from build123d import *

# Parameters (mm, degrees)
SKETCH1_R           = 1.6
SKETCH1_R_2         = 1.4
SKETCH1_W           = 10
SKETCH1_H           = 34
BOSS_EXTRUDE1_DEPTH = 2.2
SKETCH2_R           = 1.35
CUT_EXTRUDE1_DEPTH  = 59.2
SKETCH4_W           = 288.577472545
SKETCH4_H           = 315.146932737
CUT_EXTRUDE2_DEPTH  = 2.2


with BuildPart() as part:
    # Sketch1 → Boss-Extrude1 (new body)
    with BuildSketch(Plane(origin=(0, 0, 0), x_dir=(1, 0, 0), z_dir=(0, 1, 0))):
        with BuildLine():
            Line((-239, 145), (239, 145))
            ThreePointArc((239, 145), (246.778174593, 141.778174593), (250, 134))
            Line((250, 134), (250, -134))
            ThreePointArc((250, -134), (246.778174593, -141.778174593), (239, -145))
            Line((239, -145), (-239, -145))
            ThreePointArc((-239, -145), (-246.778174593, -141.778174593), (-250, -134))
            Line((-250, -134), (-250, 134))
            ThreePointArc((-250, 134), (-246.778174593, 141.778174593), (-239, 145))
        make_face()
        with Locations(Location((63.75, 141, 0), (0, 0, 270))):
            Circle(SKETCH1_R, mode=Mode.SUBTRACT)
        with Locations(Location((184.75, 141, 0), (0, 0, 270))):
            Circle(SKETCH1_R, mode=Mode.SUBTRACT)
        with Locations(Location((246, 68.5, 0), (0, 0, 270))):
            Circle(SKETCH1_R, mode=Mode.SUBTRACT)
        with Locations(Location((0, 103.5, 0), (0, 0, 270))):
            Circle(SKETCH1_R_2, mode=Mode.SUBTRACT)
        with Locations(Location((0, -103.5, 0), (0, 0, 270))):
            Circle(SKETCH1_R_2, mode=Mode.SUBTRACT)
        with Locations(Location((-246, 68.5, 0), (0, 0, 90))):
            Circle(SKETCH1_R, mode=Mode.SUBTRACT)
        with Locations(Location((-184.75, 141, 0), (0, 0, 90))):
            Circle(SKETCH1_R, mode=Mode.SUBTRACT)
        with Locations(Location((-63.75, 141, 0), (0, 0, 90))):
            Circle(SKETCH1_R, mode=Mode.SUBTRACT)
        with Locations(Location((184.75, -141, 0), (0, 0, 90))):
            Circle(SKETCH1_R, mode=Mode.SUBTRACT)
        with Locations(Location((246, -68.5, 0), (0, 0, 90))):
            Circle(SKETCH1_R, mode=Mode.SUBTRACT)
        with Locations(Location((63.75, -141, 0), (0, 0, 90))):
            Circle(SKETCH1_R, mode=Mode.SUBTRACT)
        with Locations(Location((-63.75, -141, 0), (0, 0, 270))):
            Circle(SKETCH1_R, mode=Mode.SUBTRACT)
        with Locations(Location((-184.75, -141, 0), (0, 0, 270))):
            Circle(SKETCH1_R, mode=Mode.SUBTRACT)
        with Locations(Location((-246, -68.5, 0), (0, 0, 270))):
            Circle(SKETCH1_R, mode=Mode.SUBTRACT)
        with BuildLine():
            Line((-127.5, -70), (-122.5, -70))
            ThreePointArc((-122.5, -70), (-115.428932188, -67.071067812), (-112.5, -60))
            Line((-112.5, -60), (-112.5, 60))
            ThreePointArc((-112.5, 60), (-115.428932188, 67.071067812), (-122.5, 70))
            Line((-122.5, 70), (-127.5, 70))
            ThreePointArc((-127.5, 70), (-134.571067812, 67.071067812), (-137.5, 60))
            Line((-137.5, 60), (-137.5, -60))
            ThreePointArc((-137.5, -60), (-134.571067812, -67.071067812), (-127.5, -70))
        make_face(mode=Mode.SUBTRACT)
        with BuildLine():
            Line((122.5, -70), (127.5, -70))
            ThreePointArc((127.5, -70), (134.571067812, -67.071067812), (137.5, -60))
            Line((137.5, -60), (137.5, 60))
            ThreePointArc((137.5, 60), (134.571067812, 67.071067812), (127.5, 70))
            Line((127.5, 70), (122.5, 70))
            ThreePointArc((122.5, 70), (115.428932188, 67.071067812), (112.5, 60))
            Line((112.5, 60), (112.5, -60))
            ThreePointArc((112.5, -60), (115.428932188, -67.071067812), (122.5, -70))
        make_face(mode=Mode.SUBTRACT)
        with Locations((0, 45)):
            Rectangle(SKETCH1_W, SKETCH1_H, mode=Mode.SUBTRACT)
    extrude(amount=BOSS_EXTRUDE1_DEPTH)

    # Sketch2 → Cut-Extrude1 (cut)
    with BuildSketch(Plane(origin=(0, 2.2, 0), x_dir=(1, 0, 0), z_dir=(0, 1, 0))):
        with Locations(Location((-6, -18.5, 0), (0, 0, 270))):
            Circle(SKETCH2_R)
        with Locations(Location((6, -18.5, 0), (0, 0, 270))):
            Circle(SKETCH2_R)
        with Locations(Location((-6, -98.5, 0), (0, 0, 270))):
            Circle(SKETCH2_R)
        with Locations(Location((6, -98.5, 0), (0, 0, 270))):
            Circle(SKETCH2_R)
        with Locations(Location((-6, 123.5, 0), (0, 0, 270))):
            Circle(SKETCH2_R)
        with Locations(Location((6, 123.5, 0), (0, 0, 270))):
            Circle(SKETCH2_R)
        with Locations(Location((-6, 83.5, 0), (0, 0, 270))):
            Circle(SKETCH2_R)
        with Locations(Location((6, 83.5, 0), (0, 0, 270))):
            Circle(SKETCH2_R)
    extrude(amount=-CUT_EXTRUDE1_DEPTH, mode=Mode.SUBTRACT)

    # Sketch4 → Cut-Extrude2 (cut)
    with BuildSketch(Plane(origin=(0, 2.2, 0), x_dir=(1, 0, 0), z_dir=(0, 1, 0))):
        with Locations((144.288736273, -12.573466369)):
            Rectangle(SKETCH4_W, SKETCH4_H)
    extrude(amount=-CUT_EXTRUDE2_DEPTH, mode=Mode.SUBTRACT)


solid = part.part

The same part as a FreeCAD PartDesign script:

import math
import FreeCAD as App
import Part
import Sketcher
from FreeCAD import Vector
Q = App.Units.Quantity


def add_polygon(sketch, points):
    """Adds a closed chain of lines whose ends are joined by coincident constraints."""
    first, n = sketch.GeometryCount, len(points)
    for a, b in zip(points, points[1:] + points[:1]):
        sketch.addGeometry(Part.LineSegment(App.Vector(*a, 0), App.Vector(*b, 0)), False)
    for i in range(n):
        sketch.addConstraint(Sketcher.Constraint("Coincident", first + i, 2, first + (i + 1) % n, 1))

doc = App.newDocument("Part")
body = doc.addObject("PartDesign::Body", "Body")

sketch1 = body.newObject("Sketcher::SketchObject", "Sketch")
sketch1.AttachmentSupport = (doc.getObject("XZ_Plane"), [""])
sketch1.MapMode = "FlatFace"
sketch1.addGeometry(Part.LineSegment(Vector(239, -145, 0), Vector(-239, -145, 0)), False)
sketch1.addGeometry(Part.ArcOfCircle(Part.Circle(Vector(-239, -134, 0), Vector(0, 0, 1), 11), math.radians(180), math.radians(270)), False)
sketch1.addGeometry(Part.LineSegment(Vector(-250, -134, 0), Vector(-250, 134, 0)), False)
sketch1.addGeometry(Part.ArcOfCircle(Part.Circle(Vector(-239, 134, 0), Vector(0, 0, 1), 11), math.radians(90), math.radians(180)), False)
sketch1.addGeometry(Part.LineSegment(Vector(-239, 145, 0), Vector(239, 145, 0)), False)
sketch1.addGeometry(Part.ArcOfCircle(Part.Circle(Vector(239, 134, 0), Vector(0, 0, 1), 11), math.radians(0), math.radians(90)), False)
sketch1.addGeometry(Part.LineSegment(Vector(250, 134, 0), Vector(250, -134, 0)), False)
sketch1.addGeometry(Part.ArcOfCircle(Part.Circle(Vector(239, -134, 0), Vector(0, 0, 1), 11), math.radians(-90), math.radians(0)), False)
sketch1.addGeometry(Part.Circle(Vector(184.75, 141, 0), Vector(0, 0, 1), 1.6), False)
sketch1.addGeometry(Part.Circle(Vector(63.75, 141, 0), Vector(0, 0, 1), 1.6), False)
sketch1.addGeometry(Part.Circle(Vector(246, 68.5, 0), Vector(0, 0, 1), 1.6), False)
sketch1.addGeometry(Part.Circle(Vector(-63.75, 141, 0), Vector(0, 0, 1), 1.6), False)
sketch1.addGeometry(Part.Circle(Vector(0, 103.5, 0), Vector(0, 0, 1), 1.4), False)
sketch1.addGeometry(Part.Circle(Vector(-184.75, 141, 0), Vector(0, 0, 1), 1.6), False)
sketch1.addGeometry(Part.Circle(Vector(-246, 68.5, 0), Vector(0, 0, 1), 1.6), False)
sketch1.addGeometry(Part.ArcOfCircle(Part.Circle(Vector(122.5, 60, 0), Vector(0, 0, 1), 10), math.radians(90), math.radians(180)), False)
sketch1.addGeometry(Part.LineSegment(Vector(112.5, 60, 0), Vector(112.5, -60, 0)), False)
sketch1.addGeometry(Part.ArcOfCircle(Part.Circle(Vector(122.5, -60, 0), Vector(0, 0, 1), 10), math.radians(180), math.radians(270)), False)
sketch1.addGeometry(Part.LineSegment(Vector(122.5, -70, 0), Vector(127.5, -70, 0)), False)
sketch1.addGeometry(Part.ArcOfCircle(Part.Circle(Vector(127.5, -60, 0), Vector(0, 0, 1), 10), math.radians(-90), math.radians(0)), False)
sketch1.addGeometry(Part.LineSegment(Vector(137.5, -60, 0), Vector(137.5, 60, 0)), False)
sketch1.addGeometry(Part.ArcOfCircle(Part.Circle(Vector(127.5, 60, 0), Vector(0, 0, 1), 10), math.radians(0), math.radians(90)), False)
sketch1.addGeometry(Part.LineSegment(Vector(127.5, 70, 0), Vector(122.5, 70, 0)), False)
sketch1.addGeometry(Part.Circle(Vector(246, -68.5, 0), Vector(0, 0, 1), 1.6), False)
sketch1.addGeometry(Part.Circle(Vector(184.75, -141, 0), Vector(0, 0, 1), 1.6), False)
sketch1.addGeometry(Part.Circle(Vector(63.75, -141, 0), Vector(0, 0, 1), 1.6), False)
add_polygon(sketch1, [(-5, -28), (-5, -62), (5, -62), (5, -28)])
sketch1.addGeometry(Part.ArcOfCircle(Part.Circle(Vector(-127.5, 60, 0), Vector(0, 0, 1), 10), math.radians(90), math.radians(180)), False)
sketch1.addGeometry(Part.LineSegment(Vector(-137.5, 60, 0), Vector(-137.5, -60, 0)), False)
sketch1.addGeometry(Part.ArcOfCircle(Part.Circle(Vector(-127.5, -60, 0), Vector(0, 0, 1), 10), math.radians(180), math.radians(270)), False)
sketch1.addGeometry(Part.LineSegment(Vector(-127.5, -70, 0), Vector(-122.5, -70, 0)), False)
sketch1.addGeometry(Part.ArcOfCircle(Part.Circle(Vector(-122.5, -60, 0), Vector(0, 0, 1), 10), math.radians(-90), math.radians(0)), False)
sketch1.addGeometry(Part.LineSegment(Vector(-112.5, -60, 0), Vector(-112.5, 60, 0)), False)
sketch1.addGeometry(Part.ArcOfCircle(Part.Circle(Vector(-122.5, 60, 0), Vector(0, 0, 1), 10), math.radians(0), math.radians(90)), False)
sketch1.addGeometry(Part.LineSegment(Vector(-122.5, 70, 0), Vector(-127.5, 70, 0)), False)
sketch1.addGeometry(Part.Circle(Vector(-246, -68.5, 0), Vector(0, 0, 1), 1.6), False)
sketch1.addGeometry(Part.Circle(Vector(0, -103.5, 0), Vector(0, 0, 1), 1.4), False)
sketch1.addGeometry(Part.Circle(Vector(-63.75, -141, 0), Vector(0, 0, 1), 1.6), False)
sketch1.addGeometry(Part.Circle(Vector(-184.75, -141, 0), Vector(0, 0, 1), 1.6), False)
sketch1.addConstraint(Sketcher.Constraint("Tangent", 0, 2, 1, 2))
sketch1.addConstraint(Sketcher.Constraint("Tangent", 1, 1, 2, 1))
sketch1.addConstraint(Sketcher.Constraint("Tangent", 2, 2, 3, 2))
sketch1.addConstraint(Sketcher.Constraint("Tangent", 3, 1, 4, 1))
sketch1.addConstraint(Sketcher.Constraint("Tangent", 4, 2, 5, 2))
sketch1.addConstraint(Sketcher.Constraint("Tangent", 5, 1, 6, 1))
sketch1.addConstraint(Sketcher.Constraint("Tangent", 6, 2, 7, 2))
sketch1.addConstraint(Sketcher.Constraint("Tangent", 7, 1, 0, 1))
sketch1.addConstraint(Sketcher.Constraint("Tangent", 15, 2, 16, 1))
sketch1.addConstraint(Sketcher.Constraint("Tangent", 16, 2, 17, 1))
sketch1.addConstraint(Sketcher.Constraint("Tangent", 17, 2, 18, 1))
sketch1.addConstraint(Sketcher.Constraint("Tangent", 18, 2, 19, 1))
sketch1.addConstraint(Sketcher.Constraint("Tangent", 19, 2, 20, 1))
sketch1.addConstraint(Sketcher.Constraint("Tangent", 20, 2, 21, 1))
sketch1.addConstraint(Sketcher.Constraint("Tangent", 21, 2, 22, 1))
sketch1.addConstraint(Sketcher.Constraint("Tangent", 22, 2, 15, 1))
sketch1.addConstraint(Sketcher.Constraint("Tangent", 30, 2, 31, 1))
sketch1.addConstraint(Sketcher.Constraint("Tangent", 31, 2, 32, 1))
sketch1.addConstraint(Sketcher.Constraint("Tangent", 32, 2, 33, 1))
sketch1.addConstraint(Sketcher.Constraint("Tangent", 33, 2, 34, 1))
sketch1.addConstraint(Sketcher.Constraint("Tangent", 34, 2, 35, 1))
sketch1.addConstraint(Sketcher.Constraint("Tangent", 35, 2, 36, 1))
sketch1.addConstraint(Sketcher.Constraint("Tangent", 36, 2, 37, 1))
sketch1.addConstraint(Sketcher.Constraint("Tangent", 37, 2, 30, 1))
sketch1.addConstraint(Sketcher.Constraint("Horizontal", 0))
sketch1.addConstraint(Sketcher.Constraint("Vertical", 2))
sketch1.addConstraint(Sketcher.Constraint("Horizontal", 4))
sketch1.addConstraint(Sketcher.Constraint("Vertical", 6))
sketch1.addConstraint(Sketcher.Constraint("Vertical", 16))
sketch1.addConstraint(Sketcher.Constraint("Horizontal", 18))
sketch1.addConstraint(Sketcher.Constraint("Vertical", 20))
sketch1.addConstraint(Sketcher.Constraint("Horizontal", 22))
sketch1.addConstraint(Sketcher.Constraint("Vertical", 26))
sketch1.addConstraint(Sketcher.Constraint("Horizontal", 27))
sketch1.addConstraint(Sketcher.Constraint("Vertical", 28))
sketch1.addConstraint(Sketcher.Constraint("Horizontal", 29))
sketch1.addConstraint(Sketcher.Constraint("Vertical", 31))
sketch1.addConstraint(Sketcher.Constraint("Horizontal", 33))
sketch1.addConstraint(Sketcher.Constraint("Vertical", 35))
sketch1.addConstraint(Sketcher.Constraint("Horizontal", 37))
sketch1.addConstraint(Sketcher.Constraint("Equal", 1, 3))
sketch1.addConstraint(Sketcher.Constraint("Equal", 3, 5))
sketch1.addConstraint(Sketcher.Constraint("Equal", 5, 7))
sketch1.addConstraint(Sketcher.Constraint("Equal", 8, 9))
sketch1.addConstraint(Sketcher.Constraint("Equal", 9, 10))
sketch1.addConstraint(Sketcher.Constraint("Equal", 10, 11))
sketch1.addConstraint(Sketcher.Constraint("Equal", 11, 13))
sketch1.addConstraint(Sketcher.Constraint("Equal", 13, 14))
sketch1.addConstraint(Sketcher.Constraint("Equal", 15, 17))
sketch1.addConstraint(Sketcher.Constraint("Equal", 17, 19))
sketch1.addConstraint(Sketcher.Constraint("Equal", 19, 21))
sketch1.addConstraint(Sketcher.Constraint("Equal", 14, 23))
sketch1.addConstraint(Sketcher.Constraint("Equal", 23, 24))
sketch1.addConstraint(Sketcher.Constraint("Equal", 24, 25))
sketch1.addConstraint(Sketcher.Constraint("Equal", 21, 30))
sketch1.addConstraint(Sketcher.Constraint("Equal", 30, 32))
sketch1.addConstraint(Sketcher.Constraint("Equal", 32, 34))
sketch1.addConstraint(Sketcher.Constraint("Equal", 34, 36))
sketch1.addConstraint(Sketcher.Constraint("Equal", 25, 38))
sketch1.addConstraint(Sketcher.Constraint("Equal", 12, 39))
sketch1.addConstraint(Sketcher.Constraint("Equal", 38, 40))
sketch1.addConstraint(Sketcher.Constraint("Equal", 40, 41))
sketch1.addConstraint(Sketcher.Constraint("Symmetric", 1, 3, 5, 3, -1, 1))
sketch1.addConstraint(Sketcher.Constraint("Symmetric", 14, 3, 23, 3, -1, 1))
sketch1.addConstraint(Sketcher.Constraint("Symmetric", 13, 3, 24, 3, -1, 1))
sketch1.addConstraint(Sketcher.Constraint("Symmetric", 11, 3, 25, 3, -1, 1))
sketch1.addConstraint(Sketcher.Constraint("Symmetric", 19, 3, 30, 3, -1, 1))
sketch1.addConstraint(Sketcher.Constraint("Symmetric", 15, 3, 34, 3, -1, 1))
sketch1.addConstraint(Sketcher.Constraint("Symmetric", 10, 3, 38, 3, -1, 1))
sketch1.addConstraint(Sketcher.Constraint("Symmetric", 12, 3, 39, 3, -1, 1))
sketch1.addConstraint(Sketcher.Constraint("Symmetric", 9, 3, 40, 3, -1, 1))
sketch1.addConstraint(Sketcher.Constraint("Symmetric", 8, 3, 41, 3, -1, 1))
sketch1.addConstraint(Sketcher.Constraint("Symmetric", 9, 3, 11, 3, -2))
sketch1.addConstraint(Sketcher.Constraint("Symmetric", 8, 3, 13, 3, -2))
sketch1.addConstraint(Sketcher.Constraint("Symmetric", 10, 3, 14, 3, -2))
sketch1.addConstraint(Sketcher.Constraint("PointOnObject", 12, 3, -2))
sketch1.addConstraint(Sketcher.Constraint("Horizontal", 8, 3, 9, 3))
sketch1.addConstraint(Sketcher.Constraint("Horizontal", 21, 3, 30, 3))
sketch1.addConstraint(Sketcher.Constraint("Radius", 1, Q("11 mm")))
sketch1.addConstraint(Sketcher.Constraint("Radius", 15, Q("10 mm")))
sketch1.addConstraint(Sketcher.Constraint("Diameter", 8, Q("3.2 mm")))
sketch1.addConstraint(Sketcher.Constraint("Diameter", 12, Q("2.8 mm")))
sketch1.addConstraint(Sketcher.Constraint("DistanceX", 0, 2, 0, 1, Q("478 mm")))
sketch1.addConstraint(Sketcher.Constraint("DistanceX", 18, 1, 18, 2, Q("5 mm")))
sketch1.addConstraint(Sketcher.Constraint("DistanceX", 27, 1, 27, 2, Q("10 mm")))
sketch1.addConstraint(Sketcher.Constraint("DistanceY", 2, 1, 2, 2, Q("268 mm")))
sketch1.addConstraint(Sketcher.Constraint("DistanceY", 16, 2, 16, 1, Q("120 mm")))
sketch1.addConstraint(Sketcher.Constraint("DistanceY", 26, 2, 26, 1, Q("34 mm")))
sketch1.addConstraint(Sketcher.Constraint("DistanceY", -1, 1, 8, 3, Q("141 mm")))
sketch1.addConstraint(Sketcher.Constraint("DistanceX", -1, 1, 10, 3, Q("246 mm")))
sketch1.addConstraint(Sketcher.Constraint("DistanceX", 26, 2, -1, 1, Q("5 mm")))
sketch1.addConstraint(Sketcher.Constraint("DistanceY", 26, 2, -1, 1, Q("62 mm")))
sketch1.addConstraint(Sketcher.Constraint("DistanceX", 9, 3, 8, 3, Q("121 mm")))
sketch1.addConstraint(Sketcher.Constraint("DistanceY", 14, 3, 12, 3, Q("35 mm")))
sketch1.addConstraint(Sketcher.Constraint("DistanceY", 23, 3, 10, 3, Q("137 mm")))
sketch1.addConstraint(Sketcher.Constraint("DistanceX", -1, 1, 15, 3, Q("122.5 mm")))
sketch1.addConstraint(Sketcher.Constraint("DistanceX", 11, 3, 9, 3, Q("127.5 mm")))
pad1 = body.newObject("PartDesign::Pad", "Pad")
pad1.Profile = sketch1
pad1.Length = 2.2
pad1.Reversed = True

sketch2 = body.newObject("Sketcher::SketchObject", "Sketch001")
sketch2.AttachmentSupport = (doc.getObject("XZ_Plane"), [""])
sketch2.MapMode = "FlatFace"
sketch2.AttachmentOffset = App.Placement(Vector(0, 0, -2.2), App.Rotation())
sketch2.addGeometry(Part.Circle(Vector(-6, 18.5, 0), Vector(0, 0, 1), 1.35), False)
sketch2.addGeometry(Part.Circle(Vector(6, 18.5, 0), Vector(0, 0, 1), 1.35), False)
sketch2.addGeometry(Part.Circle(Vector(-6, 98.5, 0), Vector(0, 0, 1), 1.35), False)
sketch2.addGeometry(Part.Circle(Vector(6, 98.5, 0), Vector(0, 0, 1), 1.35), False)
sketch2.addGeometry(Part.Circle(Vector(-6, -123.5, 0), Vector(0, 0, 1), 1.35), False)
sketch2.addGeometry(Part.Circle(Vector(6, -123.5, 0), Vector(0, 0, 1), 1.35), False)
sketch2.addGeometry(Part.Circle(Vector(-6, -83.5, 0), Vector(0, 0, 1), 1.35), False)
sketch2.addGeometry(Part.Circle(Vector(6, -83.5, 0), Vector(0, 0, 1), 1.35), False)
sketch2.addConstraint(Sketcher.Constraint("Equal", 0, 1))
sketch2.addConstraint(Sketcher.Constraint("Equal", 1, 2))
sketch2.addConstraint(Sketcher.Constraint("Equal", 2, 3))
sketch2.addConstraint(Sketcher.Constraint("Equal", 3, 4))
sketch2.addConstraint(Sketcher.Constraint("Equal", 4, 5))
sketch2.addConstraint(Sketcher.Constraint("Equal", 5, 6))
sketch2.addConstraint(Sketcher.Constraint("Equal", 6, 7))
sketch2.addConstraint(Sketcher.Constraint("Symmetric", 0, 3, 1, 3, -2))
sketch2.addConstraint(Sketcher.Constraint("Symmetric", 2, 3, 3, 3, -2))
sketch2.addConstraint(Sketcher.Constraint("Symmetric", 4, 3, 5, 3, -2))
sketch2.addConstraint(Sketcher.Constraint("Symmetric", 6, 3, 7, 3, -2))
sketch2.addConstraint(Sketcher.Constraint("Vertical", 0, 3, 2, 3))
sketch2.addConstraint(Sketcher.Constraint("Vertical", 2, 3, 4, 3))
sketch2.addConstraint(Sketcher.Constraint("Vertical", 4, 3, 6, 3))
sketch2.addConstraint(Sketcher.Constraint("Diameter", 0, Q("2.7 mm")))
sketch2.addConstraint(Sketcher.Constraint("DistanceX", 0, 3, -1, 1, Q("6 mm")))
sketch2.addConstraint(Sketcher.Constraint("DistanceY", 0, 3, 2, 3, Q("80 mm")))
sketch2.addConstraint(Sketcher.Constraint("DistanceY", 4, 3, 0, 3, Q("142 mm")))
sketch2.addConstraint(Sketcher.Constraint("DistanceY", 4, 3, 6, 3, Q("40 mm")))
sketch2.addConstraint(Sketcher.Constraint("DistanceY", -1, 1, 0, 3, Q("18.5 mm")))
pocket1 = body.newObject("PartDesign::Pocket", "Pocket")
pocket1.Profile = sketch2
pocket1.Length = 59.2
pocket1.Reversed = True

sketch3 = body.newObject("Sketcher::SketchObject", "Sketch002")
sketch3.AttachmentSupport = (doc.getObject("XZ_Plane"), [""])
sketch3.MapMode = "FlatFace"
sketch3.AttachmentOffset = App.Placement(Vector(0, 0, -2.2), App.Rotation())
add_polygon(sketch3, [(0, -145), (0, 170.146933), (288.577473, 170.146933), (288.577473, -145)])
sketch3.addConstraint(Sketcher.Constraint("Vertical", 0))
sketch3.addConstraint(Sketcher.Constraint("Horizontal", 1))
sketch3.addConstraint(Sketcher.Constraint("Vertical", 2))
sketch3.addConstraint(Sketcher.Constraint("Horizontal", 3))
sketch3.addConstraint(Sketcher.Constraint("PointOnObject", 0, 2, -2))
sketch3.addConstraint(Sketcher.Constraint("DistanceY", 2, 2, -1, 1, Q("145 mm")))
sketch3.addConstraint(Sketcher.Constraint("DistanceX", 1, 1, 1, 2, Q("288.577473 mm")))
sketch3.addConstraint(Sketcher.Constraint("DistanceY", 0, 1, 0, 2, Q("315.146933 mm")))
pocket2 = body.newObject("PartDesign::Pocket", "Pocket001")
pocket2.Profile = sketch3
pocket2.Length = 2.2
pocket2.Reversed = True

doc.recompute()
